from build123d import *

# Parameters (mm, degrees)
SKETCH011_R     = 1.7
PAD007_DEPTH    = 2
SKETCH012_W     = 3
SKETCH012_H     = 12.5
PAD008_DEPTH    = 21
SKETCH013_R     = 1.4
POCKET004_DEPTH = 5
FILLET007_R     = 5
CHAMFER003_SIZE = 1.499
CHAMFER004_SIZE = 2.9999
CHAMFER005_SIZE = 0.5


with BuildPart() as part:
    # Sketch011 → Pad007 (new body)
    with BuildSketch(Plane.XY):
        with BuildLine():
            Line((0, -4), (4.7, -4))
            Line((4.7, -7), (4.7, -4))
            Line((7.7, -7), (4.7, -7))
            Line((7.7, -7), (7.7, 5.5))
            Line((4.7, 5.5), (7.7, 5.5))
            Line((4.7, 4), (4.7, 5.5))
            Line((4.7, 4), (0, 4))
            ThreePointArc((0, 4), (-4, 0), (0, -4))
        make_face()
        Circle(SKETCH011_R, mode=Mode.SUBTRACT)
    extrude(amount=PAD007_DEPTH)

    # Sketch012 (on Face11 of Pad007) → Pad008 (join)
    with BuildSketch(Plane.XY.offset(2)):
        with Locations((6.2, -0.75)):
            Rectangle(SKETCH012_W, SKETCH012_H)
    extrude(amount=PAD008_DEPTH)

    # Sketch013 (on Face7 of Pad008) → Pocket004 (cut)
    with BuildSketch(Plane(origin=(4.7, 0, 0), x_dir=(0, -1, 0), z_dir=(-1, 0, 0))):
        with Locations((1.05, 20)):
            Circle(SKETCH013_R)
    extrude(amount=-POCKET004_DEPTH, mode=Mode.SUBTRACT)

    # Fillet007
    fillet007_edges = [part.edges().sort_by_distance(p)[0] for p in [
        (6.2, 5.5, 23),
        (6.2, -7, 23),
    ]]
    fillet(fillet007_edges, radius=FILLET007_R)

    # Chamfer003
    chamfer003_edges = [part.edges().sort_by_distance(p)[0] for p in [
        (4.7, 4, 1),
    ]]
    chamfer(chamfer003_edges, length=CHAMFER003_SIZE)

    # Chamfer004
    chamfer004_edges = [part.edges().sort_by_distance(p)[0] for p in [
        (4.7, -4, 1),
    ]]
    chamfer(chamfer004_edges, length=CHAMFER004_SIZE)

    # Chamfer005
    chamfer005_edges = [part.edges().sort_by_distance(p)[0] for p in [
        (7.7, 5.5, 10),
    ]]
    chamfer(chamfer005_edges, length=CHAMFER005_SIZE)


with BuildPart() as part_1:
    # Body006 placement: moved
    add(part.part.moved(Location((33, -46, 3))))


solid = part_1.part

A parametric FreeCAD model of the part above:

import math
import FreeCAD as App
import Part
import Sketcher


def edges_at(feature, points):
    """Names of the edges that pass closest to the given points."""
    edges = feature.Shape.Edges
    near = lambda p: min(range(len(edges)), key=lambda i: edges[i].distToShape(Part.Vertex(*p))[0])
    return sorted({f"Edge{near(p) + 1}" for p in points})

doc = App.newDocument("Part")
body = doc.addObject("PartDesign::Body", "Body")

sketch1 = doc.addObject("Sketcher::SketchObject", "Sketch")
body.addObject(sketch1)
sketch1.AttachmentSupport = (doc.XY_Plane, [""])
sketch1.MapMode = "FlatFace"
sketch1.addGeometry([
    Part.LineSegment(App.Vector(0, -4, 0), App.Vector(4.7, -4, 0)),
    Part.LineSegment(App.Vector(4.7, -4, 0), App.Vector(4.7, -7, 0)),
    Part.LineSegment(App.Vector(4.7, -7, 0), App.Vector(7.7, -7, 0)),
    Part.LineSegment(App.Vector(7.7, -7, 0), App.Vector(7.7, 5.5, 0)),
    Part.LineSegment(App.Vector(7.7, 5.5, 0), App.Vector(4.7, 5.5, 0)),
    Part.LineSegment(App.Vector(4.7, 5.5, 0), App.Vector(4.7, 4, 0)),
    Part.LineSegment(App.Vector(4.7, 4, 0), App.Vector(0, 4, 0)),
    Part.ArcOfCircle(Part.Circle(App.Vector(0, 0, 0), App.Vector(0, 0, 1), 4), math.radians(90), math.radians(270)),
    Part.Circle(App.Vector(0, 0, 0), App.Vector(0, 0, 1), 1.7),
], False)
sketch1.addConstraint([
    Sketcher.Constraint("Coincident", 0, 2, 1, 1),
    Sketcher.Constraint("Coincident", 1, 2, 2, 1),
    Sketcher.Constraint("Coincident", 2, 2, 3, 1),
    Sketcher.Constraint("Coincident", 3, 2, 4, 1),
    Sketcher.Constraint("Coincident", 4, 2, 5, 1),
    Sketcher.Constraint("Coincident", 5, 2, 6, 1),
    Sketcher.Constraint("Tangent", 6, 2, 7, 1),
    Sketcher.Constraint("Tangent", 7, 2, 0, 1),
    Sketcher.Constraint("Horizontal", 0),
    Sketcher.Constraint("Vertical", 1),
    Sketcher.Constraint("Horizontal", 2),
    Sketcher.Constraint("Vertical", 3),
    Sketcher.Constraint("Horizontal", 4),
    Sketcher.Constraint("Vertical", 5),
    Sketcher.Constraint("Horizontal", 6),
    Sketcher.Constraint("Coincident", 7, 3, -1, 1),
    Sketcher.Constraint("Coincident", 8, 3, -1, 1),
    Sketcher.Constraint("Vertical", 1, 2, 4, 2),
    Sketcher.Constraint("Equal", 4, 1),
    Sketcher.Constraint("Radius", 7, 4.0),
    Sketcher.Constraint("Diameter", 8, 3.4),
    Sketcher.Constraint("DistanceX", 2, 1, 2, 2, 3.0),
    Sketcher.Constraint("DistanceX", 0, 1, 0, 2, 4.7),
    Sketcher.Constraint("DistanceY", 3, 1, 3, 2, 12.5),
])
pad1 = doc.addObject("PartDesign::Pad", "Pad")
body.addObject(pad1)
pad1.Profile = sketch1
pad1.Length = 2

sketch2 = doc.addObject("Sketcher::SketchObject", "Sketch001")
body.addObject(sketch2)
sketch2.AttachmentSupport = (doc.XY_Plane, [""])
sketch2.MapMode = "FlatFace"
sketch2.AttachmentOffset = App.Placement(App.Vector(0, 0, 2), App.Rotation())
sketch2.addGeometry([
    Part.LineSegment(App.Vector(4.7, 5.5, 0), App.Vector(4.7, -7, 0)),
    Part.LineSegment(App.Vector(4.7, -7, 0), App.Vector(7.7, -7, 0)),
    Part.LineSegment(App.Vector(7.7, -7, 0), App.Vector(7.7, 5.5, 0)),
    Part.LineSegment(App.Vector(7.7, 5.5, 0), App.Vector(4.7, 5.5, 0)),
], False)
sketch2.addConstraint([
    Sketcher.Constraint("Coincident", 0, 2, 1, 1),
    Sketcher.Constraint("Coincident", 1, 2, 2, 1),
    Sketcher.Constraint("Coincident", 2, 2, 3, 1),
    Sketcher.Constraint("Coincident", 3, 2, 0, 1),
    Sketcher.Constraint("Vertical", 0),
    Sketcher.Constraint("Horizontal", 1),
    Sketcher.Constraint("Vertical", 2),
    Sketcher.Constraint("Horizontal", 3),
    Sketcher.Constraint("DistanceX", 1, 1, 1, 2, 3.0),
    Sketcher.Constraint("DistanceY", 0, 2, 0, 1, 12.5),
    Sketcher.Constraint("DistanceY", 0, 2, -1, 1, 7.0),
    Sketcher.Constraint("DistanceX", -1, 1, 0, 2, 4.7),
])
pad2 = doc.addObject("PartDesign::Pad", "Pad001")
body.addObject(pad2)
pad2.Profile = sketch2
pad2.Length = 21

sketch3 = doc.addObject("Sketcher::SketchObject", "Sketch002")
body.addObject(sketch3)
sketch3.AttachmentSupport = (doc.YZ_Plane, [""])
sketch3.MapMode = "FlatFace"
sketch3.AttachmentOffset = App.Placement(App.Vector(0, 0, 4.7), App.Rotation())
sketch3.addGeometry(Part.Circle(App.Vector(-1.05, 20, 0), App.Vector(0, 0, 1), 1.4), False)
sketch3.addConstraint([
    Sketcher.Constraint("Diameter", 0, 2.8),
    Sketcher.Constraint("DistanceY", -1, 1, 0, 3, 20.0),
    Sketcher.Constraint("DistanceX", 0, 3, -1, 1, 1.05),
])
pocket1 = doc.addObject("PartDesign::Pocket", "Pocket")
body.addObject(pocket1)
pocket1.Profile = sketch3
pocket1.Length = 5
pocket1.Reversed = True
doc.recompute()

fillet = doc.addObject("PartDesign::Fillet", "Fillet")
body.addObject(fillet)
fillet.Base = (pocket1, edges_at(pocket1, [(6.2, 5.5, 23), (6.2, -7, 23)]))
fillet.Radius = 5
doc.recompute()

chamfer = doc.addObject("PartDesign::Chamfer", "Chamfer")
body.addObject(chamfer)
chamfer.Base = (fillet, edges_at(fillet, [(4.7, 4, 1)]))
chamfer.Size = 1.499
doc.recompute()

chamfer2 = doc.addObject("PartDesign::Chamfer", "Chamfer001")
body.addObject(chamfer2)
chamfer2.Base = (chamfer, edges_at(chamfer, [(4.7, -4, 1)]))
chamfer2.Size = 2.9999
doc.recompute()

chamfer3 = doc.addObject("PartDesign::Chamfer", "Chamfer002")
body.addObject(chamfer3)
chamfer3.Base = (chamfer2, edges_at(chamfer2, [(7.7, 5.5, 9)]))
chamfer3.Size = 0.5
body2 = doc.addObject("PartDesign::Body", "Body001")
doc.recompute()

body.Placement = App.Placement(App.Vector(33, -46, 3), App.Rotation(App.Vector(0, 0, 1), 0))
boolean = doc.addObject("PartDesign::Boolean", "Boolean")
body2.addObject(boolean)
boolean.Type = "Fuse"
boolean.addObjects([body])

doc.recompute()
